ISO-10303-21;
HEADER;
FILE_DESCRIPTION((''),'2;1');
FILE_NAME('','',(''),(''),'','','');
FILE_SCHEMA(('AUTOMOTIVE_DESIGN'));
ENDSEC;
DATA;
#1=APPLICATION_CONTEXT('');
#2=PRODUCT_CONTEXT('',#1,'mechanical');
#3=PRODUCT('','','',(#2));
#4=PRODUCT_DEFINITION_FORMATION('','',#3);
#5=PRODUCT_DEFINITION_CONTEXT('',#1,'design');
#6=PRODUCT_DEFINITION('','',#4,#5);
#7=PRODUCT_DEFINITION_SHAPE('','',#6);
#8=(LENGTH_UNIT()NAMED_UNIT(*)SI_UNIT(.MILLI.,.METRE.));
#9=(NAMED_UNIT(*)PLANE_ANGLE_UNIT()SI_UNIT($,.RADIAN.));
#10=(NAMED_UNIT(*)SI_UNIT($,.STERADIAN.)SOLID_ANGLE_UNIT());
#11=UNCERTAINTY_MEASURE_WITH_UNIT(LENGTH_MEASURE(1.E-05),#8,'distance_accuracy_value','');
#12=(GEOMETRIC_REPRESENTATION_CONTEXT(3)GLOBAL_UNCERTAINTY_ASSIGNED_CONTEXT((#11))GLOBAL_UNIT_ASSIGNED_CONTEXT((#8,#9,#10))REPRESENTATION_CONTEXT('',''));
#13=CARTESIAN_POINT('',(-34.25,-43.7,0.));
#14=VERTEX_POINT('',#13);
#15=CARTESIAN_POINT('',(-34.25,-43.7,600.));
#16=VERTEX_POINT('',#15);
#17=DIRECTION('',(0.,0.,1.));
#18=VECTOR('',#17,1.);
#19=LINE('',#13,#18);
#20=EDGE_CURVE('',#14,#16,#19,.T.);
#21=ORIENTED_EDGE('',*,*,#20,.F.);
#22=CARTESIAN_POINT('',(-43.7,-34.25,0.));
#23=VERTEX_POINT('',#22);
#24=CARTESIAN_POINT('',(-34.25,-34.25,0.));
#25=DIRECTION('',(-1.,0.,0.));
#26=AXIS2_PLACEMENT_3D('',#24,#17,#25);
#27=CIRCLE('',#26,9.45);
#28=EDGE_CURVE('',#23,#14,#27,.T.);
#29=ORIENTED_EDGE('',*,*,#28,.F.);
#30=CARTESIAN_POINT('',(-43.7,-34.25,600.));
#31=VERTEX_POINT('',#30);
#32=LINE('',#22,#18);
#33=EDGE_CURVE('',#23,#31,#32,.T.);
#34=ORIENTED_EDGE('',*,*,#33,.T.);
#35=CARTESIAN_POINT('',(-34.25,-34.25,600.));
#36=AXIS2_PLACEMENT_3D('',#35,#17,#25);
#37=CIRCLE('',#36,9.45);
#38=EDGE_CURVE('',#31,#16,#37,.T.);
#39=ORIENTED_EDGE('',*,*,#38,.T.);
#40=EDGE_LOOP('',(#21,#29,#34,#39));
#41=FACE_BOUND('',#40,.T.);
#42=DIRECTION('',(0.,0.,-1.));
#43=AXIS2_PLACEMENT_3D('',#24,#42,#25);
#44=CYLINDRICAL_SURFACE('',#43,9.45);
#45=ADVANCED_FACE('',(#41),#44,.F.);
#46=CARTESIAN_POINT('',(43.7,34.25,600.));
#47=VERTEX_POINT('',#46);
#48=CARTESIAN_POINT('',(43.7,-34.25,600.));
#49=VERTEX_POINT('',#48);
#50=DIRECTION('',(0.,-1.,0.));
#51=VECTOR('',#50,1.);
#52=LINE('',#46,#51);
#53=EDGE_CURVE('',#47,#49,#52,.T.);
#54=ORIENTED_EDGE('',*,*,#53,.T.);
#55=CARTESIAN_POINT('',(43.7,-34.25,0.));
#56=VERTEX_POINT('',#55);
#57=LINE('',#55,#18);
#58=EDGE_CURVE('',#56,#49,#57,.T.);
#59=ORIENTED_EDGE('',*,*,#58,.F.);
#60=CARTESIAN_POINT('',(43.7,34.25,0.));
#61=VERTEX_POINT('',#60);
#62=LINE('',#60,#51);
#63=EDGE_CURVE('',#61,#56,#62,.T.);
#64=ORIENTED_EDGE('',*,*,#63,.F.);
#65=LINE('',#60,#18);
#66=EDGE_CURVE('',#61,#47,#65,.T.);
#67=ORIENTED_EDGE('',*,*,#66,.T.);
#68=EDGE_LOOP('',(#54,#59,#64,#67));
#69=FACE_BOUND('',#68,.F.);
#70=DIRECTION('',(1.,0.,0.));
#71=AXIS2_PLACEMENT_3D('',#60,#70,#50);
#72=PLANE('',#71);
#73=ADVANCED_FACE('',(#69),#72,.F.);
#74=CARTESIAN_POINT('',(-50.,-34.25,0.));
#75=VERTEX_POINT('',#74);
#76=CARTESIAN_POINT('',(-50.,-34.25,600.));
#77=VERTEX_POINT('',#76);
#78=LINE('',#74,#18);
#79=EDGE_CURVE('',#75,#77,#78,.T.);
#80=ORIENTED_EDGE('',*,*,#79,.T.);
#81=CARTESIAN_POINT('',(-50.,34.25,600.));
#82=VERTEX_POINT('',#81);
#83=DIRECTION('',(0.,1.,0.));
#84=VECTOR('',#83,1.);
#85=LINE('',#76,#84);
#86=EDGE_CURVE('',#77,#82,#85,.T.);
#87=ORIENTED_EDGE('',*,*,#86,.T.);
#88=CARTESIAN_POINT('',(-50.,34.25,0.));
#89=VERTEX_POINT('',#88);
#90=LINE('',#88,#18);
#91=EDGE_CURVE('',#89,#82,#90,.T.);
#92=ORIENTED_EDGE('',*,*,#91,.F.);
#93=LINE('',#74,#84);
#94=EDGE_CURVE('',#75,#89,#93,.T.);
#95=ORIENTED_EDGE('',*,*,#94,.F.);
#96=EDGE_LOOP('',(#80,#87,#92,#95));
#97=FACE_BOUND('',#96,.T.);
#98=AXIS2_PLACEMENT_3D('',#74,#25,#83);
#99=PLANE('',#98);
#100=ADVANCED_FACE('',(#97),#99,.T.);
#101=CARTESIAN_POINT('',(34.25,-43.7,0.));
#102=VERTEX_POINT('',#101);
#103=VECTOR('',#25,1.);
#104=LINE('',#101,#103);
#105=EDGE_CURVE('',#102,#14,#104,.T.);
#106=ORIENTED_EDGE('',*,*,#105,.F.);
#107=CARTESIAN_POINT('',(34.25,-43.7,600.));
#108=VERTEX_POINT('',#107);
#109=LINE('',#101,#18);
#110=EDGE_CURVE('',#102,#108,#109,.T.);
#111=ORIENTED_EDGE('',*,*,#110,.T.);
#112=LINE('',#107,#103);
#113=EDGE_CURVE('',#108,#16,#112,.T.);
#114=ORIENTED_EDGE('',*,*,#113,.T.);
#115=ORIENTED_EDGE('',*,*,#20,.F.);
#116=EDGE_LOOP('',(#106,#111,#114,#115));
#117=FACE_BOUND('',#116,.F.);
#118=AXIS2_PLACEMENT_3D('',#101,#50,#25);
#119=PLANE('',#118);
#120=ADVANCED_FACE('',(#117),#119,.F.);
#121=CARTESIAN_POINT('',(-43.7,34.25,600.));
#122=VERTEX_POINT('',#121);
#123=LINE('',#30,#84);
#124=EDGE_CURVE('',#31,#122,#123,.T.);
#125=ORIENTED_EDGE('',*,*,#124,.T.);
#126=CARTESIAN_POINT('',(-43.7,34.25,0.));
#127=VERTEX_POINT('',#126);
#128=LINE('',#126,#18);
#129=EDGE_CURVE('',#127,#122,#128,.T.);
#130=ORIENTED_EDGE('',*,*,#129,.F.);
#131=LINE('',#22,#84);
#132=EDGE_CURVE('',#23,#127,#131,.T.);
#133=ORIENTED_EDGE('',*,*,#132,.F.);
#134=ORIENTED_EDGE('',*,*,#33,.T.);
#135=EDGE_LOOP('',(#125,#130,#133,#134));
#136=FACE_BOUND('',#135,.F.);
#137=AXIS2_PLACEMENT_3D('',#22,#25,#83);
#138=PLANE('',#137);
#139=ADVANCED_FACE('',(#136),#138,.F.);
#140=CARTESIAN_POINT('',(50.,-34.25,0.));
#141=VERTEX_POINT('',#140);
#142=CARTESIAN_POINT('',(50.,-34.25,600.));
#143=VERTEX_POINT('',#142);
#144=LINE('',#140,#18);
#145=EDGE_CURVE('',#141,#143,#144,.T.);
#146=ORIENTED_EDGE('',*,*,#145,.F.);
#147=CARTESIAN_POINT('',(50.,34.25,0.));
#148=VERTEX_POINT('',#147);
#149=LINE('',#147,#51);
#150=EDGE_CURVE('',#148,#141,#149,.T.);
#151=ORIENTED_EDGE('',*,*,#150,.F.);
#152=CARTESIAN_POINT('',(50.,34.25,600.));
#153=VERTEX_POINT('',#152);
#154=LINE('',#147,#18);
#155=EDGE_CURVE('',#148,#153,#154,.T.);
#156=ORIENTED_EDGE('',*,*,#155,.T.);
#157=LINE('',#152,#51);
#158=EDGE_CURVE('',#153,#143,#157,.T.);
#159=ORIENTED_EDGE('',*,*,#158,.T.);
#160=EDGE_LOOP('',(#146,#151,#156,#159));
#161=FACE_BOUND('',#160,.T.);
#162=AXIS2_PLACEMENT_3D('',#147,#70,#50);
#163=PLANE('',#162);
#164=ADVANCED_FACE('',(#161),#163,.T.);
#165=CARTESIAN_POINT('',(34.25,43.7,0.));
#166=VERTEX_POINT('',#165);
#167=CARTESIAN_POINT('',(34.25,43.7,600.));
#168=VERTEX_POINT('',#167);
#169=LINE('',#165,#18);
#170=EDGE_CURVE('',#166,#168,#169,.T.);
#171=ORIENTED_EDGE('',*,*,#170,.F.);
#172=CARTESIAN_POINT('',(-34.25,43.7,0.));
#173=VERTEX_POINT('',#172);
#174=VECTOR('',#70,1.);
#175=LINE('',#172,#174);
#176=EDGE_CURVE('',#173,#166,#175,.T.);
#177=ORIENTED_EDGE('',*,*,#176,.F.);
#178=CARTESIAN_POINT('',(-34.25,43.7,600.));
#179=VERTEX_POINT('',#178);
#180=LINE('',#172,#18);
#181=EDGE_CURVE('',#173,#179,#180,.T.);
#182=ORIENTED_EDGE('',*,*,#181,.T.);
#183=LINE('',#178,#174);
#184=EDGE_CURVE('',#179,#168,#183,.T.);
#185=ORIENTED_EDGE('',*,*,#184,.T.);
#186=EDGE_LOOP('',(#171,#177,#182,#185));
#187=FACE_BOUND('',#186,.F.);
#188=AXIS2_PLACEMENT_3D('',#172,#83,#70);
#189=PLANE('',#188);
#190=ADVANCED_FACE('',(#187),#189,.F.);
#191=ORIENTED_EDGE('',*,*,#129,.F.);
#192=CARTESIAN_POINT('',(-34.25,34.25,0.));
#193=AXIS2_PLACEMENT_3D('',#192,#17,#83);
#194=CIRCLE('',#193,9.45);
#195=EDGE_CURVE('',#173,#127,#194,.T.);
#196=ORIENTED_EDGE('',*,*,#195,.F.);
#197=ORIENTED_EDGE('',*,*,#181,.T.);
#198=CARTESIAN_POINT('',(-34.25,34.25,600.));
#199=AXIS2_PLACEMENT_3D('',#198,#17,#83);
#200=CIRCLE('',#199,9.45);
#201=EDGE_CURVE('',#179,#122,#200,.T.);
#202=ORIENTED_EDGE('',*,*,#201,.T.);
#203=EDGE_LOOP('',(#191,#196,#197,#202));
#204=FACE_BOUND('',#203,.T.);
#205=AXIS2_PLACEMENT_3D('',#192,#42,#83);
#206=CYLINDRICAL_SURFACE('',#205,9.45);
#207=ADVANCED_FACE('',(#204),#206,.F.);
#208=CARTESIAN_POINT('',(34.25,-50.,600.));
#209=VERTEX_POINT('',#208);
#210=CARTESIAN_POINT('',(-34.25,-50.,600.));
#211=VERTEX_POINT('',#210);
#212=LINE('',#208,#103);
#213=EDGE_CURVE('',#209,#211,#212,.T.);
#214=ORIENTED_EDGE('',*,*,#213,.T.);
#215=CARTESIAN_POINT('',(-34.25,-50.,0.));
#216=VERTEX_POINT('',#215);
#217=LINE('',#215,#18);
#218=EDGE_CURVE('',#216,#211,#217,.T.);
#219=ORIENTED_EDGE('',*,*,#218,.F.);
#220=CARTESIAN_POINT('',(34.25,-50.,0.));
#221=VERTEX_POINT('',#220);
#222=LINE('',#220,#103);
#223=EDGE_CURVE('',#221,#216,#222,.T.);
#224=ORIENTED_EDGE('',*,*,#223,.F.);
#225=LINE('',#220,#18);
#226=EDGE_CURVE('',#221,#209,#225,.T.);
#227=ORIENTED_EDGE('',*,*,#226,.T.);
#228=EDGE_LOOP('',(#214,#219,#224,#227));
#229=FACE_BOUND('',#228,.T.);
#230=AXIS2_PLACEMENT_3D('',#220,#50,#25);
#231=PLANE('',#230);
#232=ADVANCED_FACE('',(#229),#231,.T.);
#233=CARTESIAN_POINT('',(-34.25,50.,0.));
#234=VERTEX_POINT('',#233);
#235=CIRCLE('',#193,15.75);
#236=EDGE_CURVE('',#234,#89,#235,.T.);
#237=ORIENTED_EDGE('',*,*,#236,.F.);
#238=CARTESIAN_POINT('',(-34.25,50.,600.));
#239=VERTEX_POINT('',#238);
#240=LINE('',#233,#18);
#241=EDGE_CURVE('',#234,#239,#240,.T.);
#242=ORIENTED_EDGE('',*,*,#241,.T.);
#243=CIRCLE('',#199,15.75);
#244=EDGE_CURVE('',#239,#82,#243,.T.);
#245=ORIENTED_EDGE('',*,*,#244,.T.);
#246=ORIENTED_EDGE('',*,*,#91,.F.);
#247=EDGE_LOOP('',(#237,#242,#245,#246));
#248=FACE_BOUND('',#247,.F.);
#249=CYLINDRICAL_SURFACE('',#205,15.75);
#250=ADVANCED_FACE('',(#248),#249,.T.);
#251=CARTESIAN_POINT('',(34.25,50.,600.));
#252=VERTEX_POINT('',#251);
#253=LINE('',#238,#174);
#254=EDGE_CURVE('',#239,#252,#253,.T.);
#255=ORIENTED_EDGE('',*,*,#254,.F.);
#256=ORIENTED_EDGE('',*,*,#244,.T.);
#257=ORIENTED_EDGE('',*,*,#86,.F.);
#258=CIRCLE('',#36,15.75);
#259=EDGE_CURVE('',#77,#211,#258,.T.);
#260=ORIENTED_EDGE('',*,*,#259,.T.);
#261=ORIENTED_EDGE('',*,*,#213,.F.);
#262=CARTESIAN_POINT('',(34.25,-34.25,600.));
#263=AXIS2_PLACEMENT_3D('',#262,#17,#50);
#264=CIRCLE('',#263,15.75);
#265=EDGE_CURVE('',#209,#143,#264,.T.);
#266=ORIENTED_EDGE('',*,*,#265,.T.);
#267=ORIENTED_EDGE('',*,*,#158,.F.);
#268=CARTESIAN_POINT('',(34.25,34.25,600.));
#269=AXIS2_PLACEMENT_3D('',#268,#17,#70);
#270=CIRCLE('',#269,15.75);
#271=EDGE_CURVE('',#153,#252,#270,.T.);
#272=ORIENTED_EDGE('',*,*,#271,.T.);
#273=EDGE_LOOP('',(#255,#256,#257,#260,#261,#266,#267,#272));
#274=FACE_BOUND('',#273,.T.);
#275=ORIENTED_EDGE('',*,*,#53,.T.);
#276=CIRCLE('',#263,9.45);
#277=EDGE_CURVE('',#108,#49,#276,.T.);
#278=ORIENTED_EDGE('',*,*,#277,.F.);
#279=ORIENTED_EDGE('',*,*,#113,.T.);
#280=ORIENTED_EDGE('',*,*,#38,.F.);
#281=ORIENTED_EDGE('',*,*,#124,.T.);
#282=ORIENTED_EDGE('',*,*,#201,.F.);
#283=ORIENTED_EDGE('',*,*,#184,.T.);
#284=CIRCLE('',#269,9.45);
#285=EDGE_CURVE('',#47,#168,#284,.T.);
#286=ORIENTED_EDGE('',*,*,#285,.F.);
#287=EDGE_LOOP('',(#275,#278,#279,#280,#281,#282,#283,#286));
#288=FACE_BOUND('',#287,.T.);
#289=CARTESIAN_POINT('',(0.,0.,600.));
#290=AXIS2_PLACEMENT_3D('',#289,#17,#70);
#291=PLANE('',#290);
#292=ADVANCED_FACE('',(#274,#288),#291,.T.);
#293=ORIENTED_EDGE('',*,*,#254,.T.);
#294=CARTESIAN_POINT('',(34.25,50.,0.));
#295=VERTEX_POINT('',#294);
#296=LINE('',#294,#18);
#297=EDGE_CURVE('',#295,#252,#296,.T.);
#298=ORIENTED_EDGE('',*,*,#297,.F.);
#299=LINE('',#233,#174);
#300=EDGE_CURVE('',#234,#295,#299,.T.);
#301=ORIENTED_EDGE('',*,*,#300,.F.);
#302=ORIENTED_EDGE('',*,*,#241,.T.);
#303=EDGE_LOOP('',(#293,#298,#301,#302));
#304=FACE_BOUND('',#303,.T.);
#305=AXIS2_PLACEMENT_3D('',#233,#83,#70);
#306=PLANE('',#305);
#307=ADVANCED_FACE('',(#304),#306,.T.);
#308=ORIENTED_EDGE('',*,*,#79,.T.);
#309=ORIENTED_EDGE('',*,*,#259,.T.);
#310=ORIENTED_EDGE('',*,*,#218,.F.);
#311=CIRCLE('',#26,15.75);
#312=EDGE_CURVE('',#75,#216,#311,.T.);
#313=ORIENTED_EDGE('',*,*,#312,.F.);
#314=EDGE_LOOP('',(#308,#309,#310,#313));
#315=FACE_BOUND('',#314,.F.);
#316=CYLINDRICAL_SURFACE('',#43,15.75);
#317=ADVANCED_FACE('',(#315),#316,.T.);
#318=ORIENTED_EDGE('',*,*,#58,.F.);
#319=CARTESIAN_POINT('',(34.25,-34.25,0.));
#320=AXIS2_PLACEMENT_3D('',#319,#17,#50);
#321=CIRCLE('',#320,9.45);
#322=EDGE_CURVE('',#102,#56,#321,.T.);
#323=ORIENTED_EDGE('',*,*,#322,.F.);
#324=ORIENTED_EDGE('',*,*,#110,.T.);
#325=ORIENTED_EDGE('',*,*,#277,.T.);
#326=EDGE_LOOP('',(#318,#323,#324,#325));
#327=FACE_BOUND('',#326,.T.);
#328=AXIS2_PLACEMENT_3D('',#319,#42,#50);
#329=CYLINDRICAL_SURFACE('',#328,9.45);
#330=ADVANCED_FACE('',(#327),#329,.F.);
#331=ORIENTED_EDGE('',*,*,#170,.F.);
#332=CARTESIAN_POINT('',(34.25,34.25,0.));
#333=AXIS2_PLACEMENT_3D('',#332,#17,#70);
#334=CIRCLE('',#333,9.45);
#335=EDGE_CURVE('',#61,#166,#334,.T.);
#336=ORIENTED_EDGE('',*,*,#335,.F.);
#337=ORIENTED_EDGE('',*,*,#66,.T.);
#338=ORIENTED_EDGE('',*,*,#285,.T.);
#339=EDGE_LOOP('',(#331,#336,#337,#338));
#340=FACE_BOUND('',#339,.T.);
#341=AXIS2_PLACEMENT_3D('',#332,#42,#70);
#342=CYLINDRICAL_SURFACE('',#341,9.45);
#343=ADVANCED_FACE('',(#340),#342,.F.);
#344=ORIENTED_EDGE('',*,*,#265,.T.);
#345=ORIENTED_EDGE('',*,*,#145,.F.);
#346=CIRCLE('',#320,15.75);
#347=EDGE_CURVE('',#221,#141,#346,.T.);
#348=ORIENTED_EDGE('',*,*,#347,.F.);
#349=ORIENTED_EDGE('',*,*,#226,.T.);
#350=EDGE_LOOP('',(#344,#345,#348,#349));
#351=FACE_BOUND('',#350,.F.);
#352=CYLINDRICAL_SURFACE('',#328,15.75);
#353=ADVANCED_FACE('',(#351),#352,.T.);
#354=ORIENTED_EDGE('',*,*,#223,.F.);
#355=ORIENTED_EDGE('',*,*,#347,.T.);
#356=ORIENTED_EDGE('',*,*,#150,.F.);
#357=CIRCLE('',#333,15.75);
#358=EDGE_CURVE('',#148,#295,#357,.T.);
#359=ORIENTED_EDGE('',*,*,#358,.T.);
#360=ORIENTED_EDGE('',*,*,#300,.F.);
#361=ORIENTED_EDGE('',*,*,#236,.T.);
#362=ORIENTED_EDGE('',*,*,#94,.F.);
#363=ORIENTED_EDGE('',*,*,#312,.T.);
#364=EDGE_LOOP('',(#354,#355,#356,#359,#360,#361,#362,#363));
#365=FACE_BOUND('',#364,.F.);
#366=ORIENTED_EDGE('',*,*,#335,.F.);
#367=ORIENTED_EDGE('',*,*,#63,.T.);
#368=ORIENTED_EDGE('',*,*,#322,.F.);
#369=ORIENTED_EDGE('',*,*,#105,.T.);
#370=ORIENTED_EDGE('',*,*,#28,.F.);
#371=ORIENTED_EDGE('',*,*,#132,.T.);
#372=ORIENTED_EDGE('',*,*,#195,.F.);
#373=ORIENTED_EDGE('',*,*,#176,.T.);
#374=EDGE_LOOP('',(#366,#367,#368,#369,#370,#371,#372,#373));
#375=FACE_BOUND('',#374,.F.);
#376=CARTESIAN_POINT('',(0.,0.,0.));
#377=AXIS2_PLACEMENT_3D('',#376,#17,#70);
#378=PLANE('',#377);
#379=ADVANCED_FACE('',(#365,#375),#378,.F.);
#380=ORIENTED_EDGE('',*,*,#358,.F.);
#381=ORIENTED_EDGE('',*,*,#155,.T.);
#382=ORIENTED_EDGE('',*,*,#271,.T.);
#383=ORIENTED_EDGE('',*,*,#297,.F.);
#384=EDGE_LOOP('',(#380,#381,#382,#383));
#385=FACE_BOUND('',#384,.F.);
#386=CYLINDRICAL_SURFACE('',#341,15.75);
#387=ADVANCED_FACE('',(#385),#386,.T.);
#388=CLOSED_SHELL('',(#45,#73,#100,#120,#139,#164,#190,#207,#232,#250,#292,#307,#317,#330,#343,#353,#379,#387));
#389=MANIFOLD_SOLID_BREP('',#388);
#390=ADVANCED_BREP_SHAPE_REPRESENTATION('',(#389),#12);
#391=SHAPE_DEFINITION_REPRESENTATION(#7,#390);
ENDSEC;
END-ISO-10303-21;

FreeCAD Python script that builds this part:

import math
import FreeCAD as App
import Part
import Sketcher

doc = App.newDocument("Part")
body = doc.addObject("PartDesign::Body", "Body")

# Sketch on XY plane
sketch1 = doc.addObject("Sketcher::SketchObject", "Sketch")
body.addObject(sketch1)
sketch1.AttachmentSupport = (doc.XY_Plane, [""])
sketch1.MapMode = "FlatFace"
sketch1.addGeometry([
    Part.LineSegment(App.Vector(-50, 34.25, 0), App.Vector(-50, -34.25, 0)),  # 0
    Part.ArcOfCircle(Part.Circle(App.Vector(-34.25, -34.25, 0), App.Vector(0, 0, 1), 15.75), math.radians(180), math.radians(270)),  # 1
    Part.LineSegment(App.Vector(-34.25, -50, 0), App.Vector(34.25, -50, 0)),  # 2
    Part.ArcOfCircle(Part.Circle(App.Vector(34.25, -34.25, 0), App.Vector(0, 0, 1), 15.75), math.radians(-90), math.radians(0)),  # 3
    Part.LineSegment(App.Vector(50, -34.25, 0), App.Vector(50, 34.25, 0)),  # 4
    Part.ArcOfCircle(Part.Circle(App.Vector(34.25, 34.25, 0), App.Vector(0, 0, 1), 15.75), math.radians(0), math.radians(90)),  # 5
    Part.LineSegment(App.Vector(34.25, 50, 0), App.Vector(-34.25, 50, 0)),  # 6
    Part.ArcOfCircle(Part.Circle(App.Vector(-34.25, 34.25, 0), App.Vector(0, 0, 1), 15.75), math.radians(90), math.radians(180)),  # 7
    Part.ArcOfCircle(Part.Circle(App.Vector(-34.25, 34.25, 0), App.Vector(0, 0, 1), 9.45), math.radians(90), math.radians(180)),  # 8
    Part.LineSegment(App.Vector(-34.25, 43.7, 0), App.Vector(34.25, 43.7, 0)),  # 9
    Part.ArcOfCircle(Part.Circle(App.Vector(34.25, 34.25, 0), App.Vector(0, 0, 1), 9.45), math.radians(0), math.radians(90)),  # 10
    Part.LineSegment(App.Vector(43.7, 34.25, 0), App.Vector(43.7, -34.25, 0)),  # 11
    Part.ArcOfCircle(Part.Circle(App.Vector(34.25, -34.25, 0), App.Vector(0, 0, 1), 9.45), math.radians(-90), math.radians(0)),  # 12
    Part.LineSegment(App.Vector(34.25, -43.7, 0), App.Vector(-34.25, -43.7, 0)),  # 13
    Part.ArcOfCircle(Part.Circle(App.Vector(-34.25, -34.25, 0), App.Vector(0, 0, 1), 9.45), math.radians(180), math.radians(270)),  # 14
    Part.LineSegment(App.Vector(-43.7, -34.25, 0), App.Vector(-43.7, 34.25, 0)),  # 15
], False)
sketch1.addConstraint([
    Sketcher.Constraint("Tangent", 0, 2, 1, 1),
    Sketcher.Constraint("Tangent", 1, 2, 2, 1),
    Sketcher.Constraint("Tangent", 2, 2, 3, 1),
    Sketcher.Constraint("Tangent", 3, 2, 4, 1),
    Sketcher.Constraint("Tangent", 4, 2, 5, 1),
    Sketcher.Constraint("Tangent", 5, 2, 6, 1),
    Sketcher.Constraint("Tangent", 6, 2, 7, 1),
    Sketcher.Constraint("Tangent", 7, 2, 0, 1),
    Sketcher.Constraint("Tangent", 8, 1, 9, 1),
    Sketcher.Constraint("Tangent", 9, 2, 10, 2),
    Sketcher.Constraint("Tangent", 10, 1, 11, 1),
    Sketcher.Constraint("Tangent", 11, 2, 12, 2),
    Sketcher.Constraint("Tangent", 12, 1, 13, 1),
    Sketcher.Constraint("Tangent", 13, 2, 14, 2),
    Sketcher.Constraint("Tangent", 14, 1, 15, 1),
    Sketcher.Constraint("Tangent", 15, 2, 8, 2),
    Sketcher.Constraint("Vertical", 0),
    Sketcher.Constraint("Horizontal", 2),
    Sketcher.Constraint("Vertical", 4),
    Sketcher.Constraint("Horizontal", 6),
    Sketcher.Constraint("Horizontal", 9),
    Sketcher.Constraint("Vertical", 11),
    Sketcher.Constraint("Horizontal", 13),
    Sketcher.Constraint("Vertical", 15),
    Sketcher.Constraint("Coincident", 8, 3, 7, 3),
    Sketcher.Constraint("Coincident", 10, 3, 5, 3),
    Sketcher.Constraint("Coincident", 12, 3, 3, 3),
    Sketcher.Constraint("Equal", 1, 3),
    Sketcher.Constraint("Equal", 3, 5),
    Sketcher.Constraint("Equal", 5, 7),
    Sketcher.Constraint("Equal", 12, 14),
    Sketcher.Constraint("Symmetric", 1, 3, 5, 3, -1, 1),
    Sketcher.Constraint("Equal", 13, 0),
    Sketcher.Constraint("Radius", 1, 15.75),
    Sketcher.Constraint("DistanceX", 0, 2, -1, 1, 50.0),
    Sketcher.Constraint("DistanceY", 8, 1, 6, 2, 6.3),
])
pad1 = doc.addObject("PartDesign::Pad", "Pad")
body.addObject(pad1)
pad1.Profile = sketch1
pad1.Length = 600

doc.recompute()
